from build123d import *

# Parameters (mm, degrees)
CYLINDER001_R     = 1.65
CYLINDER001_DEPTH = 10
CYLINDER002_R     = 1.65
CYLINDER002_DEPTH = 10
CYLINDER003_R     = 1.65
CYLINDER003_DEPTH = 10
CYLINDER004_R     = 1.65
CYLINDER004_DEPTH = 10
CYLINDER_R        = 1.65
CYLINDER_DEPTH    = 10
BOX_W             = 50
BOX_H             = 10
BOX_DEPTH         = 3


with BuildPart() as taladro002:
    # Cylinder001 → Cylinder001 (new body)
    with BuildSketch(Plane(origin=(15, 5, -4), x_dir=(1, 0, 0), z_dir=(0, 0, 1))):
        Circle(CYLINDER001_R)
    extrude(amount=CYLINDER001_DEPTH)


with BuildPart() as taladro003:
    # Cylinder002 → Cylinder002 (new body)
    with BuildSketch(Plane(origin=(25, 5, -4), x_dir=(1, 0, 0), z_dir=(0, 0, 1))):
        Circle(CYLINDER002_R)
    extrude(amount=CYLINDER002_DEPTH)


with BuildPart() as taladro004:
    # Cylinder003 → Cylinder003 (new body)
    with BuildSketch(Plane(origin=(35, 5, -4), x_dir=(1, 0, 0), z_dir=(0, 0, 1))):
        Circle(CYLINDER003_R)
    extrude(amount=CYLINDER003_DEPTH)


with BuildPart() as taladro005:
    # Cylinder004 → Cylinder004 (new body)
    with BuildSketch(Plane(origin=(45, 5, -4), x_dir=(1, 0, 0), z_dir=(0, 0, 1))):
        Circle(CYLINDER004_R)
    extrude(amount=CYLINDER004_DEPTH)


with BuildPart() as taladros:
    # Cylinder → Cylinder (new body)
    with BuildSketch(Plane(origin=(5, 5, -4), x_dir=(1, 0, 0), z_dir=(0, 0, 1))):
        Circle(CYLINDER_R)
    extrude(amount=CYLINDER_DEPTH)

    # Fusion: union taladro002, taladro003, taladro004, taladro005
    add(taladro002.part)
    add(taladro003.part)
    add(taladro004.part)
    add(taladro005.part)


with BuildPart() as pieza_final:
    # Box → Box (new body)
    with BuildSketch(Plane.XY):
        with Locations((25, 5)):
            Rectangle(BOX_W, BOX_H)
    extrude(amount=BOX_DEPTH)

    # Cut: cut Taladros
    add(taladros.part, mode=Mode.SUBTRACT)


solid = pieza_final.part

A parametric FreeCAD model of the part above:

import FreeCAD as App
import Part
import Sketcher
from FreeCAD import Vector
Q = App.Units.Quantity


def add_polygon(sketch, points):
    """Adds a closed chain of lines whose ends are joined by coincident constraints."""
    first, n = sketch.GeometryCount, len(points)
    for a, b in zip(points, points[1:] + points[:1]):
        sketch.addGeometry(Part.LineSegment(App.Vector(*a, 0), App.Vector(*b, 0)), False)
    for i in range(n):
        sketch.addConstraint(Sketcher.Constraint("Coincident", first + i, 2, first + (i + 1) % n, 1))

doc = App.newDocument("Part")
body = doc.addObject("PartDesign::Body", "Body")

# Sketch on XY plane
sketch1 = doc.addObject("Sketcher::SketchObject", "Sketch")
body.addObject(sketch1)
sketch1.AttachmentSupport = (doc.XY_Plane, [""])
sketch1.MapMode = "FlatFace"
sketch1.AttachmentOffset = App.Placement(Vector(0, 0, -4), App.Rotation())
sketch1.addGeometry(Part.Circle(Vector(15, 5, 0), Vector(0, 0, 1), 1.6), False)
sketch1.addConstraint(Sketcher.Constraint("Diameter", 0, Q("3.3 mm")))
sketch1.addConstraint(Sketcher.Constraint("DistanceX", -1, 1, 0, 3, Q("15 mm")))
sketch1.addConstraint(Sketcher.Constraint("DistanceY", -1, 1, 0, 3, Q("5 mm")))
pad1 = doc.addObject("PartDesign::Pad", "Pad")
body.addObject(pad1)
pad1.Profile = sketch1
pad1.Length = 10
body2 = doc.addObject("PartDesign::Body", "Body001")

# Sketch on XY plane
sketch2 = doc.addObject("Sketcher::SketchObject", "Sketch001")
body2.addObject(sketch2)
sketch2.AttachmentSupport = (doc.getObject("XY_Plane001"), [""])
sketch2.MapMode = "FlatFace"
sketch2.AttachmentOffset = App.Placement(Vector(0, 0, -4), App.Rotation())
sketch2.addGeometry(Part.Circle(Vector(25, 5, 0), Vector(0, 0, 1), 1.6), False)
sketch2.addConstraint(Sketcher.Constraint("Diameter", 0, Q("3.3 mm")))
sketch2.addConstraint(Sketcher.Constraint("DistanceX", -1, 1, 0, 3, Q("25 mm")))
sketch2.addConstraint(Sketcher.Constraint("DistanceY", -1, 1, 0, 3, Q("5 mm")))
pad2 = doc.addObject("PartDesign::Pad", "Pad001")
body2.addObject(pad2)
pad2.Profile = sketch2
pad2.Length = 10
body3 = doc.addObject("PartDesign::Body", "Body002")

# Sketch on XY plane
sketch3 = doc.addObject("Sketcher::SketchObject", "Sketch002")
body3.addObject(sketch3)
sketch3.AttachmentSupport = (doc.getObject("XY_Plane002"), [""])
sketch3.MapMode = "FlatFace"
sketch3.AttachmentOffset = App.Placement(Vector(0, 0, -4), App.Rotation())
sketch3.addGeometry(Part.Circle(Vector(35, 5, 0), Vector(0, 0, 1), 1.6), False)
sketch3.addConstraint(Sketcher.Constraint("Diameter", 0, Q("3.3 mm")))
sketch3.addConstraint(Sketcher.Constraint("DistanceX", -1, 1, 0, 3, Q("35 mm")))
sketch3.addConstraint(Sketcher.Constraint("DistanceY", -1, 1, 0, 3, Q("5 mm")))
pad3 = doc.addObject("PartDesign::Pad", "Pad002")
body3.addObject(pad3)
pad3.Profile = sketch3
pad3.Length = 10
body4 = doc.addObject("PartDesign::Body", "Body003")

# Sketch on XY plane
sketch4 = doc.addObject("Sketcher::SketchObject", "Sketch003")
body4.addObject(sketch4)
sketch4.AttachmentSupport = (doc.getObject("XY_Plane003"), [""])
sketch4.MapMode = "FlatFace"
sketch4.AttachmentOffset = App.Placement(Vector(0, 0, -4), App.Rotation())
sketch4.addGeometry(Part.Circle(Vector(45, 5, 0), Vector(0, 0, 1), 1.6), False)
sketch4.addConstraint(Sketcher.Constraint("Diameter", 0, Q("3.3 mm")))
sketch4.addConstraint(Sketcher.Constraint("DistanceX", -1, 1, 0, 3, Q("45 mm")))
sketch4.addConstraint(Sketcher.Constraint("DistanceY", -1, 1, 0, 3, Q("5 mm")))
pad4 = doc.addObject("PartDesign::Pad", "Pad003")
body4.addObject(pad4)
pad4.Profile = sketch4
pad4.Length = 10
body5 = doc.addObject("PartDesign::Body", "Body004")
body5.AllowCompound = True

# Sketch on XY plane
sketch5 = doc.addObject("Sketcher::SketchObject", "Sketch004")
body5.addObject(sketch5)
sketch5.AttachmentSupport = (doc.getObject("XY_Plane004"), [""])
sketch5.MapMode = "FlatFace"
sketch5.AttachmentOffset = App.Placement(Vector(0, 0, -4), App.Rotation())
sketch5.addGeometry(Part.Circle(Vector(5, 5, 0), Vector(0, 0, 1), 1.6), False)
sketch5.addConstraint(Sketcher.Constraint("Diameter", 0, Q("3.3 mm")))
sketch5.addConstraint(Sketcher.Constraint("DistanceX", -1, 1, 0, 3, Q("5 mm")))
sketch5.addConstraint(Sketcher.Constraint("DistanceY", -1, 1, 0, 3, Q("5 mm")))
pad5 = doc.addObject("PartDesign::Pad", "Pad004")
body5.addObject(pad5)
pad5.Profile = sketch5
pad5.Length = 10
doc.recompute()

boolean = doc.addObject("PartDesign::Boolean", "Boolean")
body5.addObject(boolean)
boolean.Type = "Fuse"
boolean.addObjects([body])
doc.recompute()

boolean2 = doc.addObject("PartDesign::Boolean", "Boolean001")
body5.addObject(boolean2)
boolean2.Type = "Fuse"
boolean2.addObjects([body2])
doc.recompute()

boolean3 = doc.addObject("PartDesign::Boolean", "Boolean002")
body5.addObject(boolean3)
boolean3.Type = "Fuse"
boolean3.addObjects([body3])
doc.recompute()

boolean4 = doc.addObject("PartDesign::Boolean", "Boolean003")
body5.addObject(boolean4)
boolean4.Type = "Fuse"
boolean4.addObjects([body4])
body6 = doc.addObject("PartDesign::Body", "Body005")

# Sketch on XY plane
sketch6 = doc.addObject("Sketcher::SketchObject", "Sketch005")
body6.addObject(sketch6)
sketch6.AttachmentSupport = (doc.getObject("XY_Plane005"), [""])
sketch6.MapMode = "FlatFace"
add_polygon(sketch6, [(0, 10), (0, 0), (50, 0), (50, 10)])  # lines 0-3
sketch6.addConstraint(Sketcher.Constraint("Vertical", 0))
sketch6.addConstraint(Sketcher.Constraint("Horizontal", 1))
sketch6.addConstraint(Sketcher.Constraint("Vertical", 2))
sketch6.addConstraint(Sketcher.Constraint("Horizontal", 3))
sketch6.addConstraint(Sketcher.Constraint("Coincident", 0, 2, -1, 1))
sketch6.addConstraint(Sketcher.Constraint("DistanceX", 1, 1, 1, 2, Q("50 mm")))
sketch6.addConstraint(Sketcher.Constraint("DistanceY", 0, 2, 0, 1, Q("10 mm")))
pad6 = doc.addObject("PartDesign::Pad", "Pad005")
body6.addObject(pad6)
pad6.Profile = sketch6
pad6.Length = 3
doc.recompute()

boolean5 = doc.addObject("PartDesign::Boolean", "Boolean004")
body6.addObject(boolean5)
boolean5.Type = "Cut"
boolean5.addObjects([body5])

doc.recompute()
